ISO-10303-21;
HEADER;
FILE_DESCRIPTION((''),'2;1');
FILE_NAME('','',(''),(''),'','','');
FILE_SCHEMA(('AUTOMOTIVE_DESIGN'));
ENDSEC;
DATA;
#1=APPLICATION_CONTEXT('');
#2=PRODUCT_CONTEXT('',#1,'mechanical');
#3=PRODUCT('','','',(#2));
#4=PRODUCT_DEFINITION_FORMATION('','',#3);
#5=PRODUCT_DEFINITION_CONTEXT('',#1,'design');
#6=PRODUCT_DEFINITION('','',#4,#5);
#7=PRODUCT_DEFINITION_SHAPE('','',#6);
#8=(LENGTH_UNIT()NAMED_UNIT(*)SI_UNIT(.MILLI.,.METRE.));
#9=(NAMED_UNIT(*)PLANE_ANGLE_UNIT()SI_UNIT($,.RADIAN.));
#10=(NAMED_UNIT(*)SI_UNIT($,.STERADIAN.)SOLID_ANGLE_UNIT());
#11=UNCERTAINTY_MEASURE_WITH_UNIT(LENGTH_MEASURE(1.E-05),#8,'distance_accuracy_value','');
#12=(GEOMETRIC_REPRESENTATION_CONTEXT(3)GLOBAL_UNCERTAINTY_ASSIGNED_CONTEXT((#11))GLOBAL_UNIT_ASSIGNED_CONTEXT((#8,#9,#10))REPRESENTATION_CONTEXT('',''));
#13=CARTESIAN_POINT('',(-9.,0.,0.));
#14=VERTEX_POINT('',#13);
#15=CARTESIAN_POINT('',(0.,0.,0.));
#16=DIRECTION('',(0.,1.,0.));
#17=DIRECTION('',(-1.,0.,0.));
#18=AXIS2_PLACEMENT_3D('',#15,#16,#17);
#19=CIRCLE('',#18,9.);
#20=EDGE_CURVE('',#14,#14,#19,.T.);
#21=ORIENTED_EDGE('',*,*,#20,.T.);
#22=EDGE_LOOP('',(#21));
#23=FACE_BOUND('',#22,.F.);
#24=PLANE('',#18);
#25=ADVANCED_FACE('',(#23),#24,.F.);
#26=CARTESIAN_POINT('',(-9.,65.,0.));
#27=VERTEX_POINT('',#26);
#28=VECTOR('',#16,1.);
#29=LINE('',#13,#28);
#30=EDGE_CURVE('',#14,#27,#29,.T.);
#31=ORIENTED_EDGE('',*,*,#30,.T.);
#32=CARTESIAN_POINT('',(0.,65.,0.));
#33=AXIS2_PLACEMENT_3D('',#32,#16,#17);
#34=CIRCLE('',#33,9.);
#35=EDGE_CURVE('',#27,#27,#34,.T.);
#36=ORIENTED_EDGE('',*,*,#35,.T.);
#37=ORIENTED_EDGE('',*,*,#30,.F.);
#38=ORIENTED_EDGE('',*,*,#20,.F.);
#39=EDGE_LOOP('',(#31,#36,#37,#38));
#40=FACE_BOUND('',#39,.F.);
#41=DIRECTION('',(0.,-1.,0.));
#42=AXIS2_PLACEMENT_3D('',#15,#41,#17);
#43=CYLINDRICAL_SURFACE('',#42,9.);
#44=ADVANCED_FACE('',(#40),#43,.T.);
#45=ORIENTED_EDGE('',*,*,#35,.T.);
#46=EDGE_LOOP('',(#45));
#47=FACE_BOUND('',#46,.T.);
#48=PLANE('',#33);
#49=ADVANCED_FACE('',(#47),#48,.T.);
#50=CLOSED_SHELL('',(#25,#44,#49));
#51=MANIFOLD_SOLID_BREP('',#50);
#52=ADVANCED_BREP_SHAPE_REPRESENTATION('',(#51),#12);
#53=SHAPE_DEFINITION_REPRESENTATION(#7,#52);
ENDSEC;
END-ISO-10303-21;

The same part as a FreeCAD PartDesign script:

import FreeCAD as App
import Part
import Sketcher

V = App.Vector
Q = App.Units.Quantity

doc = App.newDocument("Part")
params = doc.addObject("Spreadsheet::Sheet", "Params")
for row, (alias, value) in enumerate([
    ("sketch1_diameter", "18 mm"),
    ("pad1_length", "65 mm"),
], start=1):
    params.set(f"A{row}", alias)
    params.set(f"B{row}", "=" + value)
    params.setAlias(f"B{row}", alias)

body = doc.addObject("PartDesign::Body", "Body")

sketch1 = doc.addObject("Sketcher::SketchObject", "Sketch")
body.addObject(sketch1)
sketch1.AttachmentSupport = (doc.XZ_Plane, [""])
sketch1.MapMode = "FlatFace"
sketch1.addGeometry(Part.Circle(V(0, 0, 0), V(0, 0, 1), 9), False)
sketch1.addConstraint([
    Sketcher.Constraint("Coincident", 0, 3, -1, 1),
    Sketcher.Constraint("Diameter", 0, Q("18 mm")),
])
sketch1.setExpression("Constraints[1]", "Params.sketch1_diameter")
pad1 = doc.addObject("PartDesign::Pad", "Pad")
body.addObject(pad1)
pad1.Profile = sketch1
pad1.setExpression("Length", "Params.pad1_length")
pad1.Reversed = True

doc.recompute()
